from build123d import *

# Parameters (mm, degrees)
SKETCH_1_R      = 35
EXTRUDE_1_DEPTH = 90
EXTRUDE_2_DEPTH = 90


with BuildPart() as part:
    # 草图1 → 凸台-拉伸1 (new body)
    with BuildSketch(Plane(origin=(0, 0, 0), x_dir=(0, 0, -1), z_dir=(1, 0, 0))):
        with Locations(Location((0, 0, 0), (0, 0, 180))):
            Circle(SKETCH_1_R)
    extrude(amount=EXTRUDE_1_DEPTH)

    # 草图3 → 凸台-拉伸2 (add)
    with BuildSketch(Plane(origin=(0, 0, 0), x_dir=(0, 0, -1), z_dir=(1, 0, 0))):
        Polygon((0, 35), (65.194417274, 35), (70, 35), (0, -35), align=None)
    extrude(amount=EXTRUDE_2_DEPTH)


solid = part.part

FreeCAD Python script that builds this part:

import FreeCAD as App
import Part
import Sketcher
Q = App.Units.Quantity


def add_polygon(sketch, points):
    """Adds a closed chain of lines whose ends are joined by coincident constraints."""
    first, n = sketch.GeometryCount, len(points)
    for a, b in zip(points, points[1:] + points[:1]):
        sketch.addGeometry(Part.LineSegment(App.Vector(*a, 0), App.Vector(*b, 0)), False)
    for i in range(n):
        sketch.addConstraint(Sketcher.Constraint("Coincident", first + i, 2, first + (i + 1) % n, 1))

doc = App.newDocument("Part")
body = doc.addObject("PartDesign::Body", "Body")

# Sketch on YZ plane
sketch1 = body.newObject("Sketcher::SketchObject", "Sketch")
sketch1.AttachmentSupport = (doc.getObject("YZ_Plane"), [""])
sketch1.MapMode = "FlatFace"
sketch1.addGeometry(Part.Circle(App.Vector(0, 0, 0), App.Vector(0, 0, 1), 35), False)
sketch1.addConstraint([
    Sketcher.Constraint("Coincident", 0, 3, -1, 1),
    Sketcher.Constraint("Diameter", 0, Q("70 mm")),
])
pad1 = body.newObject("PartDesign::Pad", "Pad")
pad1.Profile = sketch1
pad1.Length = 90

# Sketch on YZ plane
sketch2 = body.newObject("Sketcher::SketchObject", "Sketch001")
sketch2.AttachmentSupport = (doc.getObject("YZ_Plane"), [""])
sketch2.MapMode = "FlatFace"
add_polygon(sketch2, [(35, -70), (35, 0), (-35, 0)])  # lines 0-2
sketch2.addConstraint([
    Sketcher.Constraint("Vertical", 0),
    Sketcher.Constraint("Horizontal", 1),
    Sketcher.Constraint("Symmetric", 0, 2, 1, 2, -1, 1),
    Sketcher.Constraint("Equal", 1, 0),
    Sketcher.Constraint("DistanceX", 1, 2, 1, 1, Q("70 mm")),
])
pad2 = body.newObject("PartDesign::Pad", "Pad001")
pad2.Profile = sketch2
pad2.Length = 90

doc.recompute()
